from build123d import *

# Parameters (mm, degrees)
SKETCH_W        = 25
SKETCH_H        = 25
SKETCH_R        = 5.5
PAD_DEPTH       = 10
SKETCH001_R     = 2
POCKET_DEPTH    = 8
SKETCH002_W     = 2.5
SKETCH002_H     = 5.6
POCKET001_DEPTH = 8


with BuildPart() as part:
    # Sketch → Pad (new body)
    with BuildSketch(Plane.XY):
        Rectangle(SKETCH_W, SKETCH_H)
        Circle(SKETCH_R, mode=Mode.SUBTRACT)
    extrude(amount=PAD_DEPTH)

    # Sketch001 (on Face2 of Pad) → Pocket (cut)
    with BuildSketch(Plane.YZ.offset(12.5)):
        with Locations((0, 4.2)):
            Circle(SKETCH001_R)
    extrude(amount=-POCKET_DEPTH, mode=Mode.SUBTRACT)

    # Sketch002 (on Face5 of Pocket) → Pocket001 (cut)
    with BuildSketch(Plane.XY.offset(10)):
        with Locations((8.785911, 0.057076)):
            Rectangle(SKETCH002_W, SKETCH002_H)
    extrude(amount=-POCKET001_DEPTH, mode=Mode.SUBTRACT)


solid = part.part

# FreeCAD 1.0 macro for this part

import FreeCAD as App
import Part
import Sketcher
from FreeCAD import Vector

doc = App.newDocument("Part")
body = doc.addObject("PartDesign::Body", "Body")

# Sketch on XY plane
sketch1 = body.newObject("Sketcher::SketchObject", "Sketch")
sketch1.AttachmentSupport = (doc.getObject("XY_Plane"), [""])
sketch1.MapMode = "FlatFace"
sketch1.addGeometry([
    Part.LineSegment(Vector(-12, 12, 0), Vector(-12, -12, 0)),  # 0
    Part.LineSegment(Vector(-12, -12, 0), Vector(12, -12, 0)),  # 1
    Part.LineSegment(Vector(12, -12, 0), Vector(12, 12, 0)),  # 2
    Part.LineSegment(Vector(12, 12, 0), Vector(-12, 12, 0)),  # 3
    Part.Circle(Vector(0, 0, 0), Vector(0, 0, 1), 6),  # 4
], False)
sketch1.addConstraint([
    Sketcher.Constraint("Coincident", 0, 2, 1, 1),
    Sketcher.Constraint("Coincident", 1, 2, 2, 1),
    Sketcher.Constraint("Coincident", 2, 2, 3, 1),
    Sketcher.Constraint("Coincident", 3, 2, 0, 1),
    Sketcher.Constraint("Vertical", 0),
    Sketcher.Constraint("Horizontal", 1),
    Sketcher.Constraint("Vertical", 2),
    Sketcher.Constraint("Horizontal", 3),
    Sketcher.Constraint("Coincident", 4, 3, -1, 1),
    Sketcher.Constraint("Symmetric", 0, 2, 2, 2, -1, 1),
    Sketcher.Constraint("Equal", 3, 0),
    Sketcher.Constraint("Diameter", 4, 11.0),
    Sketcher.Constraint("DistanceX", 1, 1, 1, 2, 25.0),
])
pad1 = body.newObject("PartDesign::Pad", "Pad")
pad1.Profile = sketch1
pad1.Length = 10

# Sketch on YZ plane
sketch2 = body.newObject("Sketcher::SketchObject", "Sketch001")
sketch2.AttachmentSupport = (doc.getObject("YZ_Plane"), [""])
sketch2.MapMode = "FlatFace"
sketch2.AttachmentOffset = App.Placement(Vector(0, 0, 12.5), App.Rotation())
sketch2.addGeometry(Part.Circle(Vector(0, 4.2, 0), Vector(0, 0, 1), 2), False)
sketch2.addConstraint([
    Sketcher.Constraint("PointOnObject", 0, 3, -2),
    Sketcher.Constraint("Diameter", 0, 4.0),
    Sketcher.Constraint("DistanceY", -1, 1, 0, 3, 4.2),
])
pocket1 = body.newObject("PartDesign::Pocket", "Pocket")
pocket1.Profile = sketch2
pocket1.Length = 8

# Sketch on XY plane
sketch3 = body.newObject("Sketcher::SketchObject", "Sketch002")
sketch3.AttachmentSupport = (doc.getObject("XY_Plane"), [""])
sketch3.MapMode = "FlatFace"
sketch3.AttachmentOffset = App.Placement(Vector(0, 0, 10), App.Rotation())
sketch3.addGeometry([
    Part.LineSegment(Vector(7.5, 2.9, 0), Vector(7.5, -2.7, 0)),
    Part.LineSegment(Vector(7.5, -2.7, 0), Vector(10, -2.7, 0)),
    Part.LineSegment(Vector(10, -2.7, 0), Vector(10, 2.9, 0)),
    Part.LineSegment(Vector(10, 2.9, 0), Vector(7.5, 2.9, 0)),
], False)
sketch3.addConstraint([
    Sketcher.Constraint("Coincident", 0, 2, 1, 1),
    Sketcher.Constraint("Coincident", 1, 2, 2, 1),
    Sketcher.Constraint("Coincident", 2, 2, 3, 1),
    Sketcher.Constraint("Coincident", 3, 2, 0, 1),
    Sketcher.Constraint("Vertical", 0),
    Sketcher.Constraint("Horizontal", 1),
    Sketcher.Constraint("Vertical", 2),
    Sketcher.Constraint("Horizontal", 3),
    Sketcher.Constraint("DistanceX", 1, 1, 1, 2, 2.5),
    Sketcher.Constraint("DistanceY", 0, 2, 0, 1, 5.6),
    Sketcher.Constraint("DistanceX", -1, 1, 0, 2, 7.535911),
    Sketcher.Constraint("DistanceY", 0, 2, -1, 1, 2.742924),
])
pocket2 = body.newObject("PartDesign::Pocket", "Pocket001")
pocket2.Profile = sketch3
pocket2.Length = 8

doc.recompute()
